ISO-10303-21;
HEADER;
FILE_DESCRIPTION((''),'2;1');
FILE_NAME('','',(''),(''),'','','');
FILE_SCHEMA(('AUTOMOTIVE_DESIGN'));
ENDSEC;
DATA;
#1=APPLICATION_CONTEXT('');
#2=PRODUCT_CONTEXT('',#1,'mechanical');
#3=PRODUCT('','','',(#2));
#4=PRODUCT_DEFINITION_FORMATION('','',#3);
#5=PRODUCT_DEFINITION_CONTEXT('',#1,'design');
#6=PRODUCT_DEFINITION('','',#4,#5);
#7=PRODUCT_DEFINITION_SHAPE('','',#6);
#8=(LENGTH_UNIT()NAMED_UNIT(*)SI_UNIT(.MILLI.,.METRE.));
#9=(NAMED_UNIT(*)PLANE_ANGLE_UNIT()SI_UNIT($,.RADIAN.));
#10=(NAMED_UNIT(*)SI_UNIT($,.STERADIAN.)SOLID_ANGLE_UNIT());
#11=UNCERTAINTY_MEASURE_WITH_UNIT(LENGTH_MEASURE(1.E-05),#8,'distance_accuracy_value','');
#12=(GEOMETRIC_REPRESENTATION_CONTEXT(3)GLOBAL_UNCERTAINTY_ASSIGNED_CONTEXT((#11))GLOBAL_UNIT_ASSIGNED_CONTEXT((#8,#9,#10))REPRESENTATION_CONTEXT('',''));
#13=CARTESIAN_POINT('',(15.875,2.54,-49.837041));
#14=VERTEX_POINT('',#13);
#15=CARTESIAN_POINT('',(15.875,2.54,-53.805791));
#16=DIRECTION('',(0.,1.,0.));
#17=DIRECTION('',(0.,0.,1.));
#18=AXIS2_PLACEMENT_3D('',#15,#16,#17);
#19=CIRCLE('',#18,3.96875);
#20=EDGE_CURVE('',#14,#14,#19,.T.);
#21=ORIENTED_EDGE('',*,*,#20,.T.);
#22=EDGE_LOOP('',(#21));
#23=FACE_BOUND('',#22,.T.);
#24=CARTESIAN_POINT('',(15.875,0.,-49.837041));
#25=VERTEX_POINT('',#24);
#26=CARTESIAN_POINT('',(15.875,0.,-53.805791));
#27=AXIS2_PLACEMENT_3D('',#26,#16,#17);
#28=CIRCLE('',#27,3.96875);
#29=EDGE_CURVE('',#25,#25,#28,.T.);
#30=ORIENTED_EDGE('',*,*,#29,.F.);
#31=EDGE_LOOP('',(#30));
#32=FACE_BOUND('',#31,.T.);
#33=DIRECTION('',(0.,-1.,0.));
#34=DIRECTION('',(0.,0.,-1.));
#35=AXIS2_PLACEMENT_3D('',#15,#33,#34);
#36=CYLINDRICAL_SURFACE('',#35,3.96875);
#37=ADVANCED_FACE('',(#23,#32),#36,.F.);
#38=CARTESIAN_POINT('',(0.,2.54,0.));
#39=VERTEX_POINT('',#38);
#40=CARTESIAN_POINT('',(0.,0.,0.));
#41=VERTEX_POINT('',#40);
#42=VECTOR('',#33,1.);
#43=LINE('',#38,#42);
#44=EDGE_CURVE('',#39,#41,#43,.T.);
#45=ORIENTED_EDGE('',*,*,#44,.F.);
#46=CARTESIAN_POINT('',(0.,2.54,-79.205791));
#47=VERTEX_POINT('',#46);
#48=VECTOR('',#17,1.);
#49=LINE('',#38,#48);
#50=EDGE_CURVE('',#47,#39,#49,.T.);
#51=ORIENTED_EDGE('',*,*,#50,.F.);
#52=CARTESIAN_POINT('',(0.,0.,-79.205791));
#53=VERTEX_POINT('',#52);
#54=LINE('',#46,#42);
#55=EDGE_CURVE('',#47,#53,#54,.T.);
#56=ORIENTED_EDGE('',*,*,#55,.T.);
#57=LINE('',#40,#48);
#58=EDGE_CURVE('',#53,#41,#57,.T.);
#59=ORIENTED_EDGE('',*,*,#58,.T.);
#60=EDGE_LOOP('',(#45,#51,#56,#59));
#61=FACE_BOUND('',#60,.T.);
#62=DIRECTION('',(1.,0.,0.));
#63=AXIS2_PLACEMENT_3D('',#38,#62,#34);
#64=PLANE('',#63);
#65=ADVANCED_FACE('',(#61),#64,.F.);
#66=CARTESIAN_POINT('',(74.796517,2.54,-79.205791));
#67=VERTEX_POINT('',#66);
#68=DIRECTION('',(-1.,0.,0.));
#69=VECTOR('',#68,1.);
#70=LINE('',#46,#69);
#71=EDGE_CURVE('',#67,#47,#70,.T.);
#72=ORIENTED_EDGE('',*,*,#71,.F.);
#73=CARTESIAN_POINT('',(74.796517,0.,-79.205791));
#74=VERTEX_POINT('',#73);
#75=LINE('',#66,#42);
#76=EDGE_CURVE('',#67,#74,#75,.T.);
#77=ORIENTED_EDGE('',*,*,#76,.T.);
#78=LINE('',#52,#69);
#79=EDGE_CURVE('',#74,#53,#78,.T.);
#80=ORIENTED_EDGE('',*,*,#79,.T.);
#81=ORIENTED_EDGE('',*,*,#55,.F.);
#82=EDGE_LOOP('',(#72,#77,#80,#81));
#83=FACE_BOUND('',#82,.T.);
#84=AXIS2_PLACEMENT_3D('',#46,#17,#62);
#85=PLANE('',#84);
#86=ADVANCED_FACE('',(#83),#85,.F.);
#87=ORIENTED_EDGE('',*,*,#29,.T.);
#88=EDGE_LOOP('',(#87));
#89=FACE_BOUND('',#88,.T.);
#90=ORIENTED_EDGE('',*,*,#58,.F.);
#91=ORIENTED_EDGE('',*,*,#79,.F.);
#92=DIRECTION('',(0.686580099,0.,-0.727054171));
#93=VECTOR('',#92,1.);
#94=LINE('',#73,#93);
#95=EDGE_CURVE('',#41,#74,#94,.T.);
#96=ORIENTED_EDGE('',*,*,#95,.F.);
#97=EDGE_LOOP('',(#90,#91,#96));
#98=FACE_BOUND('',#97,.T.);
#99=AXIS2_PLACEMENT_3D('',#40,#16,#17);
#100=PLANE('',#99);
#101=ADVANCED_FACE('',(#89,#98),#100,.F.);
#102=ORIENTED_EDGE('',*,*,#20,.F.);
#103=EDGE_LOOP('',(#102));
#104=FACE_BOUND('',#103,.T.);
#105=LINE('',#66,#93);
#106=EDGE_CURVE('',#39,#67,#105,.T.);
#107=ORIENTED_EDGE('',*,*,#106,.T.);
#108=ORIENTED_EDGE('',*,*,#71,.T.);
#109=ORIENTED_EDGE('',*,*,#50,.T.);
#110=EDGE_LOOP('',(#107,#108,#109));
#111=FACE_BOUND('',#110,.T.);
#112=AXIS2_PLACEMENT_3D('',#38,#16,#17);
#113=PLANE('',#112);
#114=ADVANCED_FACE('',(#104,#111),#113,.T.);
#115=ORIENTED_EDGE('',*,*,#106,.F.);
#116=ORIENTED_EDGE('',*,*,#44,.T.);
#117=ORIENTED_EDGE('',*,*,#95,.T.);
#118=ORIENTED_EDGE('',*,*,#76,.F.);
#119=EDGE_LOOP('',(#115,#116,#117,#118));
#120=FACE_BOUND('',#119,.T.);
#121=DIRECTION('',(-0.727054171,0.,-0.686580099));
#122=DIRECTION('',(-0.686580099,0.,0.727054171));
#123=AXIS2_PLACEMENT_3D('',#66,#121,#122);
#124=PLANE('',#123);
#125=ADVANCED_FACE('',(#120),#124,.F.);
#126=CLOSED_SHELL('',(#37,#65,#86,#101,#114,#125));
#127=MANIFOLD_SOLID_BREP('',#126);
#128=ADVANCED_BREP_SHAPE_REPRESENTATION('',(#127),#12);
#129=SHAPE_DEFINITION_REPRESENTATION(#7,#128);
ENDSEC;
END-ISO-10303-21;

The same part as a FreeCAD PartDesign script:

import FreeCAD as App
import Part
import Sketcher
Q = App.Units.Quantity


def add_polygon(sketch, points):
    """Adds a closed chain of lines whose ends are joined by coincident constraints."""
    first, n = sketch.GeometryCount, len(points)
    for a, b in zip(points, points[1:] + points[:1]):
        sketch.addGeometry(Part.LineSegment(App.Vector(*a, 0), App.Vector(*b, 0)), False)
    for i in range(n):
        sketch.addConstraint(Sketcher.Constraint("Coincident", first + i, 2, first + (i + 1) % n, 1))

doc = App.newDocument("Part")
body = doc.addObject("PartDesign::Body", "Body")

sketch1 = body.newObject("Sketcher::SketchObject", "Sketch")
sketch1.AttachmentSupport = (doc.getObject("XZ_Plane"), [""])
sketch1.MapMode = "FlatFace"
add_polygon(sketch1, [(0, -79.2), (0, 0), (74.8, -79.2)])
sketch1.addGeometry(Part.Circle(App.Vector(15.9, -53.8, 0), App.Vector(0, 0, 1), 4), False)
sketch1.addConstraint([
    Sketcher.Constraint("Vertical", 0),
    Sketcher.Constraint("Horizontal", 2),
    Sketcher.Constraint("Coincident", 0, 2, -1, 1),
    Sketcher.Constraint("Diameter", 3, Q("0.3125 in")),
    Sketcher.Constraint("DistanceY", 1, 2, 3, 3, Q("1 in")),
    Sketcher.Constraint("Angle", 1, Q("-46.64 deg")),
    Sketcher.Constraint("DistanceX", -1, 1, 3, 3, Q("0.625 in")),
    Sketcher.Constraint("Distance", 1, Q("108.9407 mm")),
])
pad1 = body.newObject("PartDesign::Pad", "Pad")
pad1.Profile = sketch1
pad1.Length = Q("0.1 in")
pad1.Reversed = True

doc.recompute()
